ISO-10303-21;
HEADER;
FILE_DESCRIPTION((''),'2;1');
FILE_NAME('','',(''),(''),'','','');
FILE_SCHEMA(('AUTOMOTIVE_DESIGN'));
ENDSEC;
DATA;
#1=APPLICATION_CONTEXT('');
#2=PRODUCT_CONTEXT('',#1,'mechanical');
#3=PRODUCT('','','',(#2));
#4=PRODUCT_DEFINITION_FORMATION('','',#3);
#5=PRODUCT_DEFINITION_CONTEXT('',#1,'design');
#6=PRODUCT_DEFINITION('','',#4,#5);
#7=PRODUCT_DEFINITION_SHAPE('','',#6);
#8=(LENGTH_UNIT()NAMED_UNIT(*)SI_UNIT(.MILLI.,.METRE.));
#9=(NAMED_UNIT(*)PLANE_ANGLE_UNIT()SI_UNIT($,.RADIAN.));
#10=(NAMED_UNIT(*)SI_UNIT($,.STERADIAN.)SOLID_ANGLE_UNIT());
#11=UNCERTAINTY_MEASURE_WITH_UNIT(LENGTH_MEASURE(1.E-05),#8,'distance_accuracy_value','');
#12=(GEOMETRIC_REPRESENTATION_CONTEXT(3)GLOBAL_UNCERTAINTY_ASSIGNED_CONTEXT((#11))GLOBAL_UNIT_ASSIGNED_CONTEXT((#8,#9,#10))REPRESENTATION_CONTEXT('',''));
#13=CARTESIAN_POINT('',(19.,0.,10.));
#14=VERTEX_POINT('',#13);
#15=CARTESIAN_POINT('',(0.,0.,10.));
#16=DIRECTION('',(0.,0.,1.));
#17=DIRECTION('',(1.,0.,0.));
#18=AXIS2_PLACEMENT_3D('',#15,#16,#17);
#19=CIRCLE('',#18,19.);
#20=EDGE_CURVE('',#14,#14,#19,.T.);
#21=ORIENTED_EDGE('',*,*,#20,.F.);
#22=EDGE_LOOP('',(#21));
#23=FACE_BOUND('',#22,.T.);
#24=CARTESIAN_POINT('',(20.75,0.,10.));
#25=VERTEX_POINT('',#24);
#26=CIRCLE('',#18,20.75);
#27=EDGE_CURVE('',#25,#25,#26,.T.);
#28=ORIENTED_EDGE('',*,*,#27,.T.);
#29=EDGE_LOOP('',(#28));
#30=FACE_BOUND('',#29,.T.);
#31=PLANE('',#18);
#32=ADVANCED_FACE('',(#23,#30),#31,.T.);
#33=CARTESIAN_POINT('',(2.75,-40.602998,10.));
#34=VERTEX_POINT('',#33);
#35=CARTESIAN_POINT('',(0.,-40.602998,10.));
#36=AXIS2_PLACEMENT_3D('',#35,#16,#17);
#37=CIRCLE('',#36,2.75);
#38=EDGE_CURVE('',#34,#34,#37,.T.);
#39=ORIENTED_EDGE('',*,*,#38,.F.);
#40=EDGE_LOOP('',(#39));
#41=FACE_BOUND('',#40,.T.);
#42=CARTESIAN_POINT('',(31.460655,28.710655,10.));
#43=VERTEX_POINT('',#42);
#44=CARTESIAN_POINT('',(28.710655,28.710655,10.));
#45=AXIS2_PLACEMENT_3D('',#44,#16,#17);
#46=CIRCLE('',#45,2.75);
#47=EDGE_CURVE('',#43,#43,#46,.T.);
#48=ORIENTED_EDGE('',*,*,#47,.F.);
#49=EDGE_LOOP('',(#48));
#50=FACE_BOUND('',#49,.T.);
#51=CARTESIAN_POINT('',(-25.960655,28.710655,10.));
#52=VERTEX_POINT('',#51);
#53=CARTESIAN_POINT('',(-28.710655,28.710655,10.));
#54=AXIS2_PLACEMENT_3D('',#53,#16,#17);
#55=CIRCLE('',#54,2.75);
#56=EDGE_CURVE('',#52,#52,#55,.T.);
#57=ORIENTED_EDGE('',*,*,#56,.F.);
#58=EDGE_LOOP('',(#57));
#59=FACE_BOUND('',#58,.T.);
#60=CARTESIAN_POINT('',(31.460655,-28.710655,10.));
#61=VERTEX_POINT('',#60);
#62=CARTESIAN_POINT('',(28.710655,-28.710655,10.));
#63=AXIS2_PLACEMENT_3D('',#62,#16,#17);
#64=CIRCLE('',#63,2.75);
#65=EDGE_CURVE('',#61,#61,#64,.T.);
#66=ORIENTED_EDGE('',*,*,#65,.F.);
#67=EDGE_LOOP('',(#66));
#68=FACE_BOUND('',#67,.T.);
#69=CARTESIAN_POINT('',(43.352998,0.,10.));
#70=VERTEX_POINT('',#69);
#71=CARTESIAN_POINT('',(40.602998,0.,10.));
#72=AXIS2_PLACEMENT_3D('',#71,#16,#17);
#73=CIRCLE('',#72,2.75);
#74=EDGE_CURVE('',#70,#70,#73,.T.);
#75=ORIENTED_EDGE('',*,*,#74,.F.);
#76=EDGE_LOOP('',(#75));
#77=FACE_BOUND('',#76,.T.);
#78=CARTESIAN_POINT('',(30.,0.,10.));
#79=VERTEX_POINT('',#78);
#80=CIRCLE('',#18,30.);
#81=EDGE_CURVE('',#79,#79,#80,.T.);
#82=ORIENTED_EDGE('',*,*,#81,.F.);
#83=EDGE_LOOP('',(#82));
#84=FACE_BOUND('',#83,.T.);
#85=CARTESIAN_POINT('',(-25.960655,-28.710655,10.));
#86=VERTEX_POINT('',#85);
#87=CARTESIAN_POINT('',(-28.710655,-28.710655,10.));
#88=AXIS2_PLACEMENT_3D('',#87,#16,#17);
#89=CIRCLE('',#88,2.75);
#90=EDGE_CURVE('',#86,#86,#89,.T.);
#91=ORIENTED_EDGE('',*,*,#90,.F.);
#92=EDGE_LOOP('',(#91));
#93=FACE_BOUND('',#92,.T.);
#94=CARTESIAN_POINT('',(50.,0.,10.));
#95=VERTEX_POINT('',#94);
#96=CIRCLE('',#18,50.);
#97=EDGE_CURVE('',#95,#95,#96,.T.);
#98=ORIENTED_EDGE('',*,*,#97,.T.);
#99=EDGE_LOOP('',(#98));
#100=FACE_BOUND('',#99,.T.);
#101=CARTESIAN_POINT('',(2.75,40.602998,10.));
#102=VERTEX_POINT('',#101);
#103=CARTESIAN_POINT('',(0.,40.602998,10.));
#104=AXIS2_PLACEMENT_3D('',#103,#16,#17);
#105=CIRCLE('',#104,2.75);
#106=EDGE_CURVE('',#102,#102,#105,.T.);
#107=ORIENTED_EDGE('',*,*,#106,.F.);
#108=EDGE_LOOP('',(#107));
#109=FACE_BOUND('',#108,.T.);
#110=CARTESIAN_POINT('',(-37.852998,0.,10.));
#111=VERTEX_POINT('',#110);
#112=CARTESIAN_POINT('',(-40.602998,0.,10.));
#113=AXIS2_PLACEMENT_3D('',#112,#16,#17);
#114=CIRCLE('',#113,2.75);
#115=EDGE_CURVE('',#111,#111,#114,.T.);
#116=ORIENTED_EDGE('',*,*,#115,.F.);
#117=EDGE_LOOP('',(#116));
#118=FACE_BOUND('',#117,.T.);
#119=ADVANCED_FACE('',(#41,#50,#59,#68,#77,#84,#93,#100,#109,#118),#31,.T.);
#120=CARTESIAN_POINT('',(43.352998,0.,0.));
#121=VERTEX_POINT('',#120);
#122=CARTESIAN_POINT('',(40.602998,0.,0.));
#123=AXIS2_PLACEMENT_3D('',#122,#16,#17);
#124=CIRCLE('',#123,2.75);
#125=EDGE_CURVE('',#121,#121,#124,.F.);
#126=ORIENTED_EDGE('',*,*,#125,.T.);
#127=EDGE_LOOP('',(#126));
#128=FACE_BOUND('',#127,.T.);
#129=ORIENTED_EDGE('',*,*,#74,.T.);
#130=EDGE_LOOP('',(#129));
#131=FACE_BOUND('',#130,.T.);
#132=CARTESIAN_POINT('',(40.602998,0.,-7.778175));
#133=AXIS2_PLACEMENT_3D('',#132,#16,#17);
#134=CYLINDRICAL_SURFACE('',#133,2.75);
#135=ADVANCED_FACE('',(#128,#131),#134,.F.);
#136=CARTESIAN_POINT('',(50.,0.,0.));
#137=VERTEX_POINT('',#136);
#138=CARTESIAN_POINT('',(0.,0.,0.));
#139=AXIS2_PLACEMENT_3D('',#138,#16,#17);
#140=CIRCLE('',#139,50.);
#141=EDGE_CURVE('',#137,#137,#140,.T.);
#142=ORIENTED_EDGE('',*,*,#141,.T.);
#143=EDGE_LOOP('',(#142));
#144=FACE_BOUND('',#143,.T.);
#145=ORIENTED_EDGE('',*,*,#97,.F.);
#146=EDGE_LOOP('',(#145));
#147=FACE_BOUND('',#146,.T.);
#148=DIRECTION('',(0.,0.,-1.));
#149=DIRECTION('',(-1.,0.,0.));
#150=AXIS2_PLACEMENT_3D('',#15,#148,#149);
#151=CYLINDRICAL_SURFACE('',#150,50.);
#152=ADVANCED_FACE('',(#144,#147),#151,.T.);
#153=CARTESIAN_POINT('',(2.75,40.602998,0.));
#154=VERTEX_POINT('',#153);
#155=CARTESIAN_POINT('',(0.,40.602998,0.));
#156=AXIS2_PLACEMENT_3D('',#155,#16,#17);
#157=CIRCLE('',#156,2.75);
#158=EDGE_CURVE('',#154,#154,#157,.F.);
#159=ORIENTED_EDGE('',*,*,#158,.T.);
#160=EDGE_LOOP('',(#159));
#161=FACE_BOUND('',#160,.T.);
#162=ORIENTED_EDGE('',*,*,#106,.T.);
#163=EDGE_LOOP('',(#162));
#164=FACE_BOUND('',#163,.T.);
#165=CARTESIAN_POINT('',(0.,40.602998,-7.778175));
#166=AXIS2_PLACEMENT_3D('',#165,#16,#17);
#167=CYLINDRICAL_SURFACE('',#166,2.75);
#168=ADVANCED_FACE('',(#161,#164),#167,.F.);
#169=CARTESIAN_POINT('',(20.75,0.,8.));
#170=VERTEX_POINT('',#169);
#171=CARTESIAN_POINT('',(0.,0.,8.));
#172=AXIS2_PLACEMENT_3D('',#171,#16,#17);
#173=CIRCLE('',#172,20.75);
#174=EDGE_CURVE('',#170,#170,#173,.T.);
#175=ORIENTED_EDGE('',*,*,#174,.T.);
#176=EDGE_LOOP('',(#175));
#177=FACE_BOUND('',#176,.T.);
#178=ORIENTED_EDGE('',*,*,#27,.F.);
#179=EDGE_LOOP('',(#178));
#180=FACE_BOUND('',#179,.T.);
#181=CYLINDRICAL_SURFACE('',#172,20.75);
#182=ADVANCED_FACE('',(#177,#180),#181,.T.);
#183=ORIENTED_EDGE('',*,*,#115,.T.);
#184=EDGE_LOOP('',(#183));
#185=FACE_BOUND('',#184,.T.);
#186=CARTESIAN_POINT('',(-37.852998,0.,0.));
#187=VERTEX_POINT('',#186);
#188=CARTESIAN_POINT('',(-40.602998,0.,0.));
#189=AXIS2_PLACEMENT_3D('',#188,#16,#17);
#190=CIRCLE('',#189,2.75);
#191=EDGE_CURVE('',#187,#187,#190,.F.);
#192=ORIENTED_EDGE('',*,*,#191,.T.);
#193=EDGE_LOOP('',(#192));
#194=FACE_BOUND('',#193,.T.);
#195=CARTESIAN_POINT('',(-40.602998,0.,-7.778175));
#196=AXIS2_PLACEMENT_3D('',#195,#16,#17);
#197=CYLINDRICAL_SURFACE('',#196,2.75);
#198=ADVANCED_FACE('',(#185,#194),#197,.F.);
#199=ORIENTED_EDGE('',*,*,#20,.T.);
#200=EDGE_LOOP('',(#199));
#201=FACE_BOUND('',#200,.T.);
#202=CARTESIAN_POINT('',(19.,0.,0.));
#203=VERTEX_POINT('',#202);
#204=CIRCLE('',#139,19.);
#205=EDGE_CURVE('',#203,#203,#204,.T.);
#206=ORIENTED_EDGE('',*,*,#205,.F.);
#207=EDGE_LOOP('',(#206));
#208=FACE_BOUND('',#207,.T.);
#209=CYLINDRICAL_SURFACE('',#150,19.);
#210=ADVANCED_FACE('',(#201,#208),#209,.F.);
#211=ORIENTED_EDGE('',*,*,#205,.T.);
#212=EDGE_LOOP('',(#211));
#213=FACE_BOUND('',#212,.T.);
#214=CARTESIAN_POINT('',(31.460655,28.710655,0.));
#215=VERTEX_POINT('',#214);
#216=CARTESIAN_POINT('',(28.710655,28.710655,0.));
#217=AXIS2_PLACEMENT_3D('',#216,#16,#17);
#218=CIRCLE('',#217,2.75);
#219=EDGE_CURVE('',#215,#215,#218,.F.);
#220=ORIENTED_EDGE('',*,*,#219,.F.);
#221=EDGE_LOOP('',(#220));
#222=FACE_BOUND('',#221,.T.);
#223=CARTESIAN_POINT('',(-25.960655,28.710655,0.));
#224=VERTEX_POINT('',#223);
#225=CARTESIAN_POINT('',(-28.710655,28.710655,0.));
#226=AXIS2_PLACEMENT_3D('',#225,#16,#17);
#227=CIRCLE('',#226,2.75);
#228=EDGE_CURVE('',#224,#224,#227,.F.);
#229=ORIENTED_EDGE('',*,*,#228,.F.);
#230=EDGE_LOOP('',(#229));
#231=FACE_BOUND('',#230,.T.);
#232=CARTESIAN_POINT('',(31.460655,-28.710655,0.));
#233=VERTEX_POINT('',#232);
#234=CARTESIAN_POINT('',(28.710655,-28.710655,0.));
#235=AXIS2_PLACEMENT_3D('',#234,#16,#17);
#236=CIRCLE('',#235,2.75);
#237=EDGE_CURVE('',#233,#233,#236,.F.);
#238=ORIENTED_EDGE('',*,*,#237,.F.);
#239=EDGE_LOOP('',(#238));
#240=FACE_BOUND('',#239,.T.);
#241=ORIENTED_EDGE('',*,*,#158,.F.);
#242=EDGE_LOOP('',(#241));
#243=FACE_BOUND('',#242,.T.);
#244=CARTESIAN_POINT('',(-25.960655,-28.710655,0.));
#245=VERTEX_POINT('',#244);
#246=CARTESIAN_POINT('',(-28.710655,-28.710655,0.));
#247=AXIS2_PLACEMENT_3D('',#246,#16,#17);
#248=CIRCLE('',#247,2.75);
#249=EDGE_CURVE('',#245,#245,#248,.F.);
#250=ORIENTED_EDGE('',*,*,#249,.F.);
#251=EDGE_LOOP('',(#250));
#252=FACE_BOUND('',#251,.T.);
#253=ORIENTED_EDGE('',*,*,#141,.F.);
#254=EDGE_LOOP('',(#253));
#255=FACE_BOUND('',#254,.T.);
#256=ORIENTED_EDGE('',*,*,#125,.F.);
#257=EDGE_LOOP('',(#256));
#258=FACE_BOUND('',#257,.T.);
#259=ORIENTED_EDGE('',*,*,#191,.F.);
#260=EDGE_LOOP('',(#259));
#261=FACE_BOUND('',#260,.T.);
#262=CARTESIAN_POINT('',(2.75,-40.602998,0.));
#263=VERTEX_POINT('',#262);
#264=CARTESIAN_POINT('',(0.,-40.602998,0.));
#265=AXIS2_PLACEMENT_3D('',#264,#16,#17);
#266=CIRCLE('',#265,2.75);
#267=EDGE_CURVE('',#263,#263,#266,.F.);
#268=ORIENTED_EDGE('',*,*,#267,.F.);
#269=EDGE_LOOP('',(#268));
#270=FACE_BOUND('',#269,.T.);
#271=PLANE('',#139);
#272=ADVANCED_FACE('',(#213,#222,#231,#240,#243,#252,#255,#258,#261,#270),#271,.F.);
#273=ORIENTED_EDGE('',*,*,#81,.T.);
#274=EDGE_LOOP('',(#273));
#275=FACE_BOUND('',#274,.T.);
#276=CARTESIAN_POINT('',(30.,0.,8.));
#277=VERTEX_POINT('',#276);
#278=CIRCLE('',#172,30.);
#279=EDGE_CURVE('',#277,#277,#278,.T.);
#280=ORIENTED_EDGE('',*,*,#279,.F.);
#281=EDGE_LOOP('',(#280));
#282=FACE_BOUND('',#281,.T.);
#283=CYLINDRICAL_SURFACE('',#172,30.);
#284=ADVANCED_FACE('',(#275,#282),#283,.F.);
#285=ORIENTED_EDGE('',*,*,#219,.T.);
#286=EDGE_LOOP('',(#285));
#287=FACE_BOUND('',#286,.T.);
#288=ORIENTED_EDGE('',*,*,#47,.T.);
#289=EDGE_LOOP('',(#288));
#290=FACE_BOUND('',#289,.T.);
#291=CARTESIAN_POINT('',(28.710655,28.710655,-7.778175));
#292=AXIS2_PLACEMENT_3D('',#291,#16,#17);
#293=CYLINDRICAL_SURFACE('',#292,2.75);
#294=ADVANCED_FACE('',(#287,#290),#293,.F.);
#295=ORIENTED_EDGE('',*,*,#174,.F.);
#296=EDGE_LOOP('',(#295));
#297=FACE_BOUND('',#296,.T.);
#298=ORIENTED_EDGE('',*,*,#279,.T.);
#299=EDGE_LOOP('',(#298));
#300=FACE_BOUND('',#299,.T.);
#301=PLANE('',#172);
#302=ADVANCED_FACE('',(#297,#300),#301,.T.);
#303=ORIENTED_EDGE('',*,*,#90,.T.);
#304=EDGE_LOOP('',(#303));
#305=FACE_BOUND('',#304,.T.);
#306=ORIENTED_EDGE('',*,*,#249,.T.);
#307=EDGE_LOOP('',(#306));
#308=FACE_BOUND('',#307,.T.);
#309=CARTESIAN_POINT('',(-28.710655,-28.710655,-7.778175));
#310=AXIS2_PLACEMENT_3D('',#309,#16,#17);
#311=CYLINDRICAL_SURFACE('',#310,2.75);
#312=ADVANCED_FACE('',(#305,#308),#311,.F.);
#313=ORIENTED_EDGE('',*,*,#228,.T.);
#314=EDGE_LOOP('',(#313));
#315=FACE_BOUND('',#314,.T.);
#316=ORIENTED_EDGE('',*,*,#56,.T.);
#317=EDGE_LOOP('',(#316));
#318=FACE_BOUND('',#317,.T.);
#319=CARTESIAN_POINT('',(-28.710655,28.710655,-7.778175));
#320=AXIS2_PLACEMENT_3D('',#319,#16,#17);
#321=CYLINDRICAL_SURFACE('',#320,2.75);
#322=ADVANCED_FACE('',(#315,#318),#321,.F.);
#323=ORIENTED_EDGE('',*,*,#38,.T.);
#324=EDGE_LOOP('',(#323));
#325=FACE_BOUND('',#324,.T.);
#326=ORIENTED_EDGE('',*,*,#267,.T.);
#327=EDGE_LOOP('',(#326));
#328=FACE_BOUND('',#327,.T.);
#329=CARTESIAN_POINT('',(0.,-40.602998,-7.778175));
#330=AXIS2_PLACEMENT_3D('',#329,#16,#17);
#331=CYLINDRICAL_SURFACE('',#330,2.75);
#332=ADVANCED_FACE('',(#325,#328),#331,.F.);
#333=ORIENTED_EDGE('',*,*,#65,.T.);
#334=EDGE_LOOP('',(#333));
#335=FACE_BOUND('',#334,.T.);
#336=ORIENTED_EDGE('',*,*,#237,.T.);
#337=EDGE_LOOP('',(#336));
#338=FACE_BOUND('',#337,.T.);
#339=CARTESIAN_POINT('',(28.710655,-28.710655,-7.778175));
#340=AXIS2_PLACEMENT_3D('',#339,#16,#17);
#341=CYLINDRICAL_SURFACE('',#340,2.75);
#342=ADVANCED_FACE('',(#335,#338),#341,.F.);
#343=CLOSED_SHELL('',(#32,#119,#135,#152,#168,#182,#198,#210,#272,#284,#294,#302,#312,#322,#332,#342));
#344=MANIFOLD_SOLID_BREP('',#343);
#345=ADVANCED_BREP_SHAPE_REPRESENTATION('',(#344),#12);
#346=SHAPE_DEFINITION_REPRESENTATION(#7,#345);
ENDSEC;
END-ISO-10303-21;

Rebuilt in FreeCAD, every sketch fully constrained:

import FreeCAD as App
import Part
import Sketcher

V = App.Vector

doc = App.newDocument("Part")
body = doc.addObject("PartDesign::Body", "Body")

# Sketch on XY plane
sketch1 = body.newObject("Sketcher::SketchObject", "Sketch")
sketch1.AttachmentSupport = (doc.getObject("XY_Plane"), [""])
sketch1.MapMode = "FlatFace"
sketch1.addGeometry([
    Part.Circle(V(0, 0, 0), V(0, 0, 1), 50),
    Part.Circle(V(0, 0, 0), V(0, 0, 1), 19),
], False)
sketch1.addConstraint([
    Sketcher.Constraint("Coincident", 0, 3, -1, 1),
    Sketcher.Constraint("Coincident", 1, 3, -1, 1),
    Sketcher.Constraint("Diameter", 0, 100.0),
    Sketcher.Constraint("Diameter", 1, 38.0),
])
pad1 = body.newObject("PartDesign::Pad", "Pad")
pad1.Profile = sketch1
pad1.Length = 10

# Sketch on XY plane
sketch2 = body.newObject("Sketcher::SketchObject", "Sketch001")
sketch2.AttachmentSupport = (doc.getObject("XY_Plane"), [""])
sketch2.MapMode = "FlatFace"
sketch2.AttachmentOffset = App.Placement(V(0, 0, 10), App.Rotation())
sketch2.addGeometry([
    Part.Circle(V(0, 0, 0), V(0, 0, 1), 30),
    Part.Circle(V(0, 0, 0), V(0, 0, 1), 21),
], False)
sketch2.addConstraint([
    Sketcher.Constraint("Coincident", 0, 3, -1, 1),
    Sketcher.Constraint("Coincident", 1, 3, -1, 1),
    Sketcher.Constraint("Diameter", 0, 60.0),
    Sketcher.Constraint("Diameter", 1, 41.5),
])
pocket1 = body.newObject("PartDesign::Pocket", "Pocket")
pocket1.Profile = sketch2
pocket1.Length = 2

# Sketch on XY plane
sketch3 = body.newObject("Sketcher::SketchObject", "Sketch002")
sketch3.AttachmentSupport = (doc.getObject("XY_Plane"), [""])
sketch3.MapMode = "FlatFace"
sketch3.AttachmentOffset = App.Placement(V(0, 0, 10), App.Rotation())
sketch3.addGeometry([
    Part.Circle(V(40.6, 0, 0), V(0, 0, 1), 2.8),  # 0
    Part.Circle(V(28.7, -28.7, 0), V(0, 0, 1), 2.8),  # 1
    Part.Circle(V(0, -40.6, 0), V(0, 0, 1), 2.8),  # 2
    Part.Circle(V(-28.7, -28.7, 0), V(0, 0, 1), 2.8),  # 3
    Part.Circle(V(-40.6, 0, 0), V(0, 0, 1), 2.8),  # 4
    Part.Circle(V(-28.7, 28.7, 0), V(0, 0, 1), 2.8),  # 5
    Part.Circle(V(0, 40.6, 0), V(0, 0, 1), 2.8),  # 6
    Part.Circle(V(28.7, 28.7, 0), V(0, 0, 1), 2.8),  # 7
], False)
sketch3.addConstraint([
    Sketcher.Constraint("Equal", 0, 1),
    Sketcher.Constraint("Equal", 1, 2),
    Sketcher.Constraint("Equal", 2, 3),
    Sketcher.Constraint("Equal", 3, 4),
    Sketcher.Constraint("Equal", 4, 5),
    Sketcher.Constraint("Equal", 5, 6),
    Sketcher.Constraint("Equal", 6, 7),
    Sketcher.Constraint("Symmetric", 0, 3, 4, 3, -1, 1),
    Sketcher.Constraint("Symmetric", 1, 3, 5, 3, -1, 1),
    Sketcher.Constraint("Symmetric", 2, 3, 6, 3, -1, 1),
    Sketcher.Constraint("Symmetric", 3, 3, 7, 3, -1, 1),
    Sketcher.Constraint("Symmetric", 1, 3, 3, 3, -2),
    Sketcher.Constraint("PointOnObject", 0, 3, -1),
    Sketcher.Constraint("PointOnObject", 2, 3, -2),
    Sketcher.Constraint("Diameter", 0, 5.5),
    Sketcher.Constraint("DistanceX", 3, 3, 1, 3, 57.42131),
    Sketcher.Constraint("DistanceY", 3, 3, 5, 3, 57.42131),
    Sketcher.Constraint("DistanceX", -1, 1, 0, 3, 40.602998),
    Sketcher.Constraint("DistanceY", 2, 3, -1, 1, 40.602998),
])
pocket2 = body.newObject("PartDesign::Pocket", "Pocket001")
pocket2.Profile = sketch3
pocket2.Length = 10

doc.recompute()
